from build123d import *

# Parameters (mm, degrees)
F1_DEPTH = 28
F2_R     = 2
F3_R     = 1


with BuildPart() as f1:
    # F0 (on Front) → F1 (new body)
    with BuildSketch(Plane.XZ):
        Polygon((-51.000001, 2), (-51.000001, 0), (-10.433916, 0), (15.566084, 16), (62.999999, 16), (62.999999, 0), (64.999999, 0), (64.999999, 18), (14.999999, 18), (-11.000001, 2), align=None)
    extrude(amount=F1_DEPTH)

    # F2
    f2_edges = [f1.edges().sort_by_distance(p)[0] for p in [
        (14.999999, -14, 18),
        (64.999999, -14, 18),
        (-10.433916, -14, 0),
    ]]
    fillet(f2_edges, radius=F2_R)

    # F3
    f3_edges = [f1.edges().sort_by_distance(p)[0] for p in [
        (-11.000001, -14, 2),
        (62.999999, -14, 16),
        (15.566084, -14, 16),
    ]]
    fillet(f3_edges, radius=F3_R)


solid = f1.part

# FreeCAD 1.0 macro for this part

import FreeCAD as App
import Part
import Sketcher

V = App.Vector
Q = App.Units.Quantity


def edges_at(feature, points):
    """Names of the edges that pass closest to the given points."""
    edges = feature.Shape.Edges
    near = lambda p: min(range(len(edges)), key=lambda i: edges[i].distToShape(Part.Vertex(*p))[0])
    return sorted({f"Edge{near(p) + 1}" for p in points})

doc = App.newDocument("Part")
body = doc.addObject("PartDesign::Body", "Body")

# Sketch on XZ plane
sketch1 = doc.addObject("Sketcher::SketchObject", "Sketch")
body.addObject(sketch1)
sketch1.AttachmentSupport = (doc.XZ_Plane, [""])
sketch1.MapMode = "FlatFace"
sketch1.addGeometry([
    Part.LineSegment(V(-51.000001, 2, 0), V(-51.000001, 0, 0)),  # 0
    Part.LineSegment(V(-51.000001, 0, 0), V(-10.433916, 0, 0)),  # 1
    Part.LineSegment(V(-10.433916, 0, 0), V(15.566084, 16, 0)),  # 2
    Part.LineSegment(V(15.566084, 16, 0), V(62.999999, 16, 0)),  # 3
    Part.LineSegment(V(62.999999, 16, 0), V(62.999999, 0, 0)),  # 4
    Part.LineSegment(V(62.999999, 0, 0), V(64.999999, 0, 0)),  # 5
    Part.LineSegment(V(64.999999, 0, 0), V(64.999999, 18, 0)),  # 6
    Part.LineSegment(V(64.999999, 18, 0), V(14.999999, 18, 0)),  # 7
    Part.LineSegment(V(14.999999, 18, 0), V(-11.000001, 2, 0)),  # 8
    Part.LineSegment(V(-11.000001, 2, 0), V(-51.000001, 2, 0)),  # 9
], False)
sketch1.addConstraint([
    Sketcher.Constraint("Coincident", 0, 2, 1, 1),
    Sketcher.Constraint("Coincident", 1, 2, 2, 1),
    Sketcher.Constraint("Coincident", 2, 2, 3, 1),
    Sketcher.Constraint("Coincident", 3, 2, 4, 1),
    Sketcher.Constraint("Coincident", 4, 2, 5, 1),
    Sketcher.Constraint("Coincident", 5, 2, 6, 1),
    Sketcher.Constraint("Coincident", 6, 2, 7, 1),
    Sketcher.Constraint("Coincident", 7, 2, 8, 1),
    Sketcher.Constraint("Coincident", 8, 2, 9, 1),
    Sketcher.Constraint("Coincident", 9, 2, 0, 1),
    Sketcher.Constraint("Vertical", 0),
    Sketcher.Constraint("Horizontal", 1),
    Sketcher.Constraint("Horizontal", 3),
    Sketcher.Constraint("Vertical", 4),
    Sketcher.Constraint("Horizontal", 5),
    Sketcher.Constraint("Vertical", 6),
    Sketcher.Constraint("Horizontal", 7),
    Sketcher.Constraint("Horizontal", 9),
    Sketcher.Constraint("PointOnObject", 0, 2, -1),
    Sketcher.Constraint("PointOnObject", 4, 2, -1),
    Sketcher.Constraint("Parallel", 2, 8),
    Sketcher.Constraint("Equal", 5, 0),
    Sketcher.Constraint("Equal", 2, 8),
    Sketcher.Constraint("DistanceX", 5, 1, 5, 2, Q("2 mm")),
    Sketcher.Constraint("DistanceX", 7, 2, 7, 1, Q("50 mm")),
    Sketcher.Constraint("DistanceX", 9, 2, 9, 1, Q("40 mm")),
    Sketcher.Constraint("DistanceY", 4, 2, 4, 1, Q("16 mm")),
    Sketcher.Constraint("DistanceX", 0, 2, -1, 1, Q("51.000001 mm")),
    Sketcher.Constraint("DistanceX", -1, 1, 3, 2, Q("62.999999 mm")),
    Sketcher.Constraint("DistanceX", 1, 1, 1, 2, Q("40.566085 mm")),
])
pad1 = doc.addObject("PartDesign::Pad", "Pad")
body.addObject(pad1)
pad1.Profile = sketch1
pad1.Length = 28
doc.recompute()

fillet = doc.addObject("PartDesign::Fillet", "Fillet")
body.addObject(fillet)
fillet.Base = (pad1, edges_at(pad1, [(15, -14, 18), (65, -14, 18), (-10.434, -14, 0)]))
fillet.Radius = 2
doc.recompute()

fillet2 = doc.addObject("PartDesign::Fillet", "Fillet001")
body.addObject(fillet2)
fillet2.Base = (fillet, edges_at(fillet, [(-11, -14, 2), (63, -14, 16), (15.566, -14, 16)]))
fillet2.Radius = 1

doc.recompute()
